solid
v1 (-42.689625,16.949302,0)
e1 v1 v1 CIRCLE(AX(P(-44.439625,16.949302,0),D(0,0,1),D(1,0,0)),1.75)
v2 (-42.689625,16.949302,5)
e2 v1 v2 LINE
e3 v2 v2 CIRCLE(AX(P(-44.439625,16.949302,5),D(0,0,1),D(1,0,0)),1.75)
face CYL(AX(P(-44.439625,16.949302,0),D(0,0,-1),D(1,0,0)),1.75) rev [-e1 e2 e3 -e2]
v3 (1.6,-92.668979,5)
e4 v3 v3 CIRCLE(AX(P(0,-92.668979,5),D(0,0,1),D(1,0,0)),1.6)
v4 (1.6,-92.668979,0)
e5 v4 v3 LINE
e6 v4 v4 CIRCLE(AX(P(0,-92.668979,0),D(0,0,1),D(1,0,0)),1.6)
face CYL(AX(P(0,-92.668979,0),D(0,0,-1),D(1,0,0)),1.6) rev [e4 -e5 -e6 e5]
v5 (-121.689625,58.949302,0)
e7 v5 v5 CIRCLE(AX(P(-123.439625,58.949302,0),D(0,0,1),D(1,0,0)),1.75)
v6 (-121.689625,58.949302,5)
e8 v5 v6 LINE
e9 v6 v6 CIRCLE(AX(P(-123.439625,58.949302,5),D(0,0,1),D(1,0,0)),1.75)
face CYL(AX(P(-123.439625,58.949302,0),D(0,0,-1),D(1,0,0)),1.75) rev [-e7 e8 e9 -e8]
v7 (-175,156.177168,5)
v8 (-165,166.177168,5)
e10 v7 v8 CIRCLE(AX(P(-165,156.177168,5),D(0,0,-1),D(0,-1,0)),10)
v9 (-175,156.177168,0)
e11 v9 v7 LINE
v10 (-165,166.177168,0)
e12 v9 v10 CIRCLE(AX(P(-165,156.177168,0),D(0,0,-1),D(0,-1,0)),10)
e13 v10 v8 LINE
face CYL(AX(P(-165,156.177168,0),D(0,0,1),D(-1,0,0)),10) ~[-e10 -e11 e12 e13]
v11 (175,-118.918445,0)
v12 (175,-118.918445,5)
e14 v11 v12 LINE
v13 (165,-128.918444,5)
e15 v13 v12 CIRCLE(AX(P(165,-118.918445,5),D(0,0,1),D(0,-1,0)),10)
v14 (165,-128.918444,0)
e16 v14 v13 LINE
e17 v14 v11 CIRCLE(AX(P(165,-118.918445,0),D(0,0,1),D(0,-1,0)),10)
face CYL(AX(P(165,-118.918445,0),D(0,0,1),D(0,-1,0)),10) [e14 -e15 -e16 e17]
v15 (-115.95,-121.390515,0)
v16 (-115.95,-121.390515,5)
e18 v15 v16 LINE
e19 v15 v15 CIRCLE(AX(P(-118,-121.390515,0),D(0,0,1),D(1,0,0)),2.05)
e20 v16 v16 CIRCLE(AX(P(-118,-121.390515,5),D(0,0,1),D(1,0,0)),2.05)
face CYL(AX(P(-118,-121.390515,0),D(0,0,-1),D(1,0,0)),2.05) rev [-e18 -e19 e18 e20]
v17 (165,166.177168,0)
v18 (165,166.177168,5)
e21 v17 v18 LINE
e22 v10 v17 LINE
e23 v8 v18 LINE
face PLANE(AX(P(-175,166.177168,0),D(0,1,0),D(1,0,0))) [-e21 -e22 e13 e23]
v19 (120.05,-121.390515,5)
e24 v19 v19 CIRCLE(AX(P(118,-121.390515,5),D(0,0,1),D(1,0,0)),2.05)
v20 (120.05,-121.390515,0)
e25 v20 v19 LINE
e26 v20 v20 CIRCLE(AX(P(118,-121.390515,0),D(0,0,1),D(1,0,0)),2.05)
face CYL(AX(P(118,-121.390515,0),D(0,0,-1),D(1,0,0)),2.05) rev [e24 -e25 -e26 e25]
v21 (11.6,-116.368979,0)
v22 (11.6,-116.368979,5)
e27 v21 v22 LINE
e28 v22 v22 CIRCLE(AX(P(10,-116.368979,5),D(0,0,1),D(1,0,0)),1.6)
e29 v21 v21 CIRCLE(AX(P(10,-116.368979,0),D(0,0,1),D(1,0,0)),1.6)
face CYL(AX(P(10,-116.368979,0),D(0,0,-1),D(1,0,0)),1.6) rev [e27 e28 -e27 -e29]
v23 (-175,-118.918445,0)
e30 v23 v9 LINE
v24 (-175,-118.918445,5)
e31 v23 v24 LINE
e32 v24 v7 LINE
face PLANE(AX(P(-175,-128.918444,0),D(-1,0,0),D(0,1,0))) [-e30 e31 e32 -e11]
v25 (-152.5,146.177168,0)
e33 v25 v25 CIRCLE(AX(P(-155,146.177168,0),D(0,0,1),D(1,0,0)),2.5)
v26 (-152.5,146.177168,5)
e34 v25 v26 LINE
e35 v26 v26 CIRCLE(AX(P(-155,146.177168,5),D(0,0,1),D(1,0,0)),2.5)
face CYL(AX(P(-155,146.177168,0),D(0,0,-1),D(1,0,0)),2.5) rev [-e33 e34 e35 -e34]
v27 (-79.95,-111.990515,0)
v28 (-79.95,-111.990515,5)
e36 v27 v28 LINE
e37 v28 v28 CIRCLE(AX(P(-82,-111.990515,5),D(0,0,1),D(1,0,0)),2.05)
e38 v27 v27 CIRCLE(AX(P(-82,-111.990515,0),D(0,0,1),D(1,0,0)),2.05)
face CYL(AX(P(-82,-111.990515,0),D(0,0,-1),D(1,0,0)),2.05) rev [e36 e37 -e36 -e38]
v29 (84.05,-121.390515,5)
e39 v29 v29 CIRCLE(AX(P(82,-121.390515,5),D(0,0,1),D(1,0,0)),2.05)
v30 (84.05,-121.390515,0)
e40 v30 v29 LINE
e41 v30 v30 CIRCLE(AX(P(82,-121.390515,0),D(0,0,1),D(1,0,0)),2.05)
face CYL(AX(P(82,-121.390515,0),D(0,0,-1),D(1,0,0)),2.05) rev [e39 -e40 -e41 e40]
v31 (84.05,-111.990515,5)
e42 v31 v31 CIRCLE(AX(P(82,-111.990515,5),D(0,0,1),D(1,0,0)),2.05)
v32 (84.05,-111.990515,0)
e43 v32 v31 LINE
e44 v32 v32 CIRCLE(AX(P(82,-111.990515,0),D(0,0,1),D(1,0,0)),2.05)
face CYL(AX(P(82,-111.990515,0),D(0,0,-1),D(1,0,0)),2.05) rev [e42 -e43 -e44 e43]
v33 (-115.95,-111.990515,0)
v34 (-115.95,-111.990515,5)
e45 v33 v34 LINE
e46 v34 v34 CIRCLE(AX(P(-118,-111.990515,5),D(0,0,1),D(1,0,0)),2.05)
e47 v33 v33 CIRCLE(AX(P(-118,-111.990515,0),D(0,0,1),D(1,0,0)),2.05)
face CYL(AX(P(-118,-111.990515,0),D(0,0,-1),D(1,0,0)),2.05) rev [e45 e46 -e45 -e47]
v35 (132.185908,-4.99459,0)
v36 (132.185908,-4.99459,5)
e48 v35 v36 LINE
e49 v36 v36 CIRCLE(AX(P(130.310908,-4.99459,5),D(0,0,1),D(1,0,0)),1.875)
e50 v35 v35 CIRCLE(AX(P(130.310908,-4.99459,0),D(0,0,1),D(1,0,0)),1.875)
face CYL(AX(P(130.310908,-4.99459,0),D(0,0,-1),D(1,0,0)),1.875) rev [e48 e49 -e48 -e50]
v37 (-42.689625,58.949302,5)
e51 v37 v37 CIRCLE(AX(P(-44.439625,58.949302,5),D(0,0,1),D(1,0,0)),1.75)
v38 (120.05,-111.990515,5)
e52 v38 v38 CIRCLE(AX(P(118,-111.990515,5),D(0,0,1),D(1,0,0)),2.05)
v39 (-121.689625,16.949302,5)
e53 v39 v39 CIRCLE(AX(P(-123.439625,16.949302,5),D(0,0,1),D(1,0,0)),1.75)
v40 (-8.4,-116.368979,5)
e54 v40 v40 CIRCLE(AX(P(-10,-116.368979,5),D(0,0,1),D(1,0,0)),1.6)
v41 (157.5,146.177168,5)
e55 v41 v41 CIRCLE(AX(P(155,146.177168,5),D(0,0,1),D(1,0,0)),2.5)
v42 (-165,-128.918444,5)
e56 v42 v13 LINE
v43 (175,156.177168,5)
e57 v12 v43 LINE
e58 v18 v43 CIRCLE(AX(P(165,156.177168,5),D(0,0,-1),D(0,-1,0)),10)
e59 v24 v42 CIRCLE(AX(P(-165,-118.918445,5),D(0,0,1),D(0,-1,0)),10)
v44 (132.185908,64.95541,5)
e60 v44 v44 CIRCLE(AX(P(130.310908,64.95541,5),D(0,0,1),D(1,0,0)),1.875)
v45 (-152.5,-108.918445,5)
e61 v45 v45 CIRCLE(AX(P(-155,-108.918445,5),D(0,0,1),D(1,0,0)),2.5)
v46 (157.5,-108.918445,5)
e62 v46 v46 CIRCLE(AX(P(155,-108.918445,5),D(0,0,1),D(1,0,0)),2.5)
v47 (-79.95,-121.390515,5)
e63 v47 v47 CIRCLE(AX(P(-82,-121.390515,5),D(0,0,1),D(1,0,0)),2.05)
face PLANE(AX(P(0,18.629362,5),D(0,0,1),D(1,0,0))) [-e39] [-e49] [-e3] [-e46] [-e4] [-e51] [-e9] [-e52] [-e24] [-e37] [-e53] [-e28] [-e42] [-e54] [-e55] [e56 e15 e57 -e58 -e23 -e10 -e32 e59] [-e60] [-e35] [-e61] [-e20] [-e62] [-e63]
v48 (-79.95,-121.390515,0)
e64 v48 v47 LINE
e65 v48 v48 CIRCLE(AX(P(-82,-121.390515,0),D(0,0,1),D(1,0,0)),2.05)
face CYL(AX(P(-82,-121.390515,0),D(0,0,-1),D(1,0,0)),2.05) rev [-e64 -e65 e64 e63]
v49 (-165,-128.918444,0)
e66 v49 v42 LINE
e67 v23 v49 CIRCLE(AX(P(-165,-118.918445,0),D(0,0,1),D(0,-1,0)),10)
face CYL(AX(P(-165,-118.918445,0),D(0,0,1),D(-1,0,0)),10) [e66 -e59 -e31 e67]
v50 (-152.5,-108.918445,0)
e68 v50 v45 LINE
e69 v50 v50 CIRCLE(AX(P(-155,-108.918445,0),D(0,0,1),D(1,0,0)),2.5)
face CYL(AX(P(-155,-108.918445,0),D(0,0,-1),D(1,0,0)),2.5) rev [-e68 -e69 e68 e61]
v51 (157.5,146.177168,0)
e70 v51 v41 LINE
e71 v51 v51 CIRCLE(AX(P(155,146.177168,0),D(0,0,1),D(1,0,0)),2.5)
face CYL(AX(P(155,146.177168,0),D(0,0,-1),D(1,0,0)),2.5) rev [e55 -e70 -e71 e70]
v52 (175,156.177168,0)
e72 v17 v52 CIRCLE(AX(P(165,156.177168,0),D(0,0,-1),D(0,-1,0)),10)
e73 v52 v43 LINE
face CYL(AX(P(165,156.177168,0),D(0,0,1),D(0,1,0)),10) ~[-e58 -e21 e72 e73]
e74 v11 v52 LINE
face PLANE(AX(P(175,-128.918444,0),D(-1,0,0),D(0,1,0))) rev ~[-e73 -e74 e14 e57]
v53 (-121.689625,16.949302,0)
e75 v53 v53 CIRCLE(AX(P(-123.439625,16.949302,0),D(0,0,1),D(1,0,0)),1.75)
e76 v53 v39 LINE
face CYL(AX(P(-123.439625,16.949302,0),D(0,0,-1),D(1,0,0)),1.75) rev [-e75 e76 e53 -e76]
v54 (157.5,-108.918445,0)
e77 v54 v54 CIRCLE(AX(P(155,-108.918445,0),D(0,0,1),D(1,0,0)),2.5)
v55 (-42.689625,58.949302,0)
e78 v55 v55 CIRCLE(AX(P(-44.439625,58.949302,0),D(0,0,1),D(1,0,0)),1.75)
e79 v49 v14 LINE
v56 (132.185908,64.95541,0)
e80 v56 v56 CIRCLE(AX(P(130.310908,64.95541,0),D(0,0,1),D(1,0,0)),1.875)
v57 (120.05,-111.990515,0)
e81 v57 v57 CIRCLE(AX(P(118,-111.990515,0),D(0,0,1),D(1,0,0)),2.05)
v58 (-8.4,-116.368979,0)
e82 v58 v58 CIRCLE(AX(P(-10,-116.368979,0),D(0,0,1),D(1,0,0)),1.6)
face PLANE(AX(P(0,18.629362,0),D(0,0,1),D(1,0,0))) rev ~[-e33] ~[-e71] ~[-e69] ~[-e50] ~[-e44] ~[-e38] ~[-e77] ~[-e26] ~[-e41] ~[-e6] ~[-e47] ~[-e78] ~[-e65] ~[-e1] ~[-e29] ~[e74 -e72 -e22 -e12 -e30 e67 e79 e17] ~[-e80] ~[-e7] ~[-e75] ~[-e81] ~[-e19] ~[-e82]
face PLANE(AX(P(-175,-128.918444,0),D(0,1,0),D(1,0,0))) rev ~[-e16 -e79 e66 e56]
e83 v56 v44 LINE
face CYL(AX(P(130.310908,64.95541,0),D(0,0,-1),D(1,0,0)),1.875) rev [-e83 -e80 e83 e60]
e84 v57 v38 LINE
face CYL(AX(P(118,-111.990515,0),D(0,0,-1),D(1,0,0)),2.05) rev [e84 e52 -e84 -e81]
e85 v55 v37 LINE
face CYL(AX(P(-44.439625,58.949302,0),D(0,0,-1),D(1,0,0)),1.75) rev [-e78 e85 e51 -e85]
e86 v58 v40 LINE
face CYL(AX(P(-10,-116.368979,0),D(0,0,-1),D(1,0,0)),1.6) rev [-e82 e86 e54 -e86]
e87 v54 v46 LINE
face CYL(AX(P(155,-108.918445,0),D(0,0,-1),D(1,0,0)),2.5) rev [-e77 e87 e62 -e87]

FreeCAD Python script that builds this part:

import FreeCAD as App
import Part
import Sketcher
from FreeCAD import Vector
Q = App.Units.Quantity


def edges_at(feature, points):
    """Names of the edges that pass closest to the given points."""
    edges = feature.Shape.Edges
    near = lambda p: min(range(len(edges)), key=lambda i: edges[i].distToShape(Part.Vertex(*p))[0])
    return sorted({f"Edge{near(p) + 1}" for p in points})


def add_polygon(sketch, points):
    """Adds a closed chain of lines whose ends are joined by coincident constraints."""
    first, n = sketch.GeometryCount, len(points)
    for a, b in zip(points, points[1:] + points[:1]):
        sketch.addGeometry(Part.LineSegment(App.Vector(*a, 0), App.Vector(*b, 0)), False)
    for i in range(n):
        sketch.addConstraint(Sketcher.Constraint("Coincident", first + i, 2, first + (i + 1) % n, 1))

doc = App.newDocument("Part")
body = doc.addObject("PartDesign::Body", "Body")

# Sketch on XY plane
sketch1 = doc.addObject("Sketcher::SketchObject", "Sketch")
body.addObject(sketch1)
sketch1.AttachmentSupport = (doc.XY_Plane, [""])
sketch1.MapMode = "FlatFace"
add_polygon(sketch1, [(-175, 166.2), (-175, -128.9), (175, -128.9), (175, 166.2)])  # lines 0-3
sketch1.addGeometry(Part.Circle(Vector(-155, -108.9, 0), Vector(0, 0, 1), 2.5), False)  # 4
sketch1.addGeometry(Part.Circle(Vector(-118, -121.4, 0), Vector(0, 0, 1), 2), False)  # 5
sketch1.addGeometry(Part.Circle(Vector(-118, -112, 0), Vector(0, 0, 1), 2), False)  # 6
sketch1.addGeometry(Part.Circle(Vector(-82, -121.4, 0), Vector(0, 0, 1), 2), False)  # 7
sketch1.addGeometry(Part.Circle(Vector(-82, -112, 0), Vector(0, 0, 1), 2), False)  # 8
sketch1.addGeometry(Part.Circle(Vector(-10, -116.4, 0), Vector(0, 0, 1), 1.6), False)  # 9
sketch1.addGeometry(Part.Circle(Vector(10, -116.4, 0), Vector(0, 0, 1), 1.6), False)  # 10
sketch1.addGeometry(Part.Circle(Vector(0, -92.7, 0), Vector(0, 0, 1), 1.6), False)  # 11
sketch1.addGeometry(Part.Circle(Vector(82, -121.4, 0), Vector(0, 0, 1), 2), False)  # 12
sketch1.addGeometry(Part.Circle(Vector(82, -112, 0), Vector(0, 0, 1), 2), False)  # 13
sketch1.addGeometry(Part.Circle(Vector(118, -121.4, 0), Vector(0, 0, 1), 2), False)  # 14
sketch1.addGeometry(Part.Circle(Vector(118, -112, 0), Vector(0, 0, 1), 2), False)  # 15
sketch1.addGeometry(Part.Circle(Vector(155, -108.9, 0), Vector(0, 0, 1), 2.5), False)  # 16
sketch1.addGeometry(Part.Circle(Vector(130.3, -5, 0), Vector(0, 0, 1), 1.9), False)  # 17
sketch1.addGeometry(Part.Circle(Vector(-123.4, 16.9, 0), Vector(0, 0, 1), 1.8), False)  # 18
sketch1.addGeometry(Part.Circle(Vector(-123.4, 58.9, 0), Vector(0, 0, 1), 1.8), False)  # 19
sketch1.addGeometry(Part.Circle(Vector(-44.4, 16.9, 0), Vector(0, 0, 1), 1.8), False)  # 20
sketch1.addGeometry(Part.Circle(Vector(-44.4, 58.9, 0), Vector(0, 0, 1), 1.8), False)  # 21
sketch1.addGeometry(Part.Circle(Vector(-155, 146.2, 0), Vector(0, 0, 1), 2.5), False)  # 22
sketch1.addGeometry(Part.Circle(Vector(130.3, 65, 0), Vector(0, 0, 1), 1.9), False)  # 23
sketch1.addGeometry(Part.Circle(Vector(155, 146.2, 0), Vector(0, 0, 1), 2.5), False)  # 24
sketch1.addConstraint([
    Sketcher.Constraint("Vertical", 0),
    Sketcher.Constraint("Horizontal", 1),
    Sketcher.Constraint("Vertical", 2),
    Sketcher.Constraint("Horizontal", 3),
    Sketcher.Constraint("Equal", 5, 6),
    Sketcher.Constraint("Equal", 6, 7),
    Sketcher.Constraint("Equal", 7, 8),
    Sketcher.Constraint("Equal", 9, 10),
    Sketcher.Constraint("Equal", 10, 11),
    Sketcher.Constraint("Equal", 8, 12),
    Sketcher.Constraint("Equal", 12, 13),
    Sketcher.Constraint("Equal", 13, 14),
    Sketcher.Constraint("Equal", 14, 15),
    Sketcher.Constraint("Equal", 4, 16),
    Sketcher.Constraint("Equal", 18, 19),
    Sketcher.Constraint("Equal", 19, 20),
    Sketcher.Constraint("Equal", 20, 21),
    Sketcher.Constraint("Equal", 16, 22),
    Sketcher.Constraint("Equal", 17, 23),
    Sketcher.Constraint("Equal", 22, 24),
    Sketcher.Constraint("Symmetric", 9, 3, 10, 3, -2),
    Sketcher.Constraint("Symmetric", 7, 3, 12, 3, -2),
    Sketcher.Constraint("Symmetric", 8, 3, 13, 3, -2),
    Sketcher.Constraint("Symmetric", 5, 3, 14, 3, -2),
    Sketcher.Constraint("Symmetric", 6, 3, 15, 3, -2),
    Sketcher.Constraint("Symmetric", 4, 3, 16, 3, -2),
    Sketcher.Constraint("Symmetric", 22, 3, 24, 3, -2),
    Sketcher.Constraint("PointOnObject", 11, 3, -2),
    Sketcher.Constraint("Horizontal", 5, 3, 7, 3),
    Sketcher.Constraint("Horizontal", 6, 3, 8, 3),
    Sketcher.Constraint("Horizontal", 18, 3, 20, 3),
    Sketcher.Constraint("Horizontal", 19, 3, 21, 3),
    Sketcher.Constraint("Vertical", 5, 3, 6, 3),
    Sketcher.Constraint("Vertical", 7, 3, 8, 3),
    Sketcher.Constraint("Vertical", 18, 3, 19, 3),
    Sketcher.Constraint("Vertical", 20, 3, 21, 3),
    Sketcher.Constraint("Vertical", 4, 3, 22, 3),
    Sketcher.Constraint("Vertical", 17, 3, 23, 3),
    Sketcher.Constraint("Diameter", 4, Q("5 mm")),
    Sketcher.Constraint("Diameter", 5, Q("4.1 mm")),
    Sketcher.Constraint("Diameter", 9, Q("3.2 mm")),
    Sketcher.Constraint("Diameter", 18, Q("3.5 mm")),
    Sketcher.Constraint("Diameter", 17, Q("3.75 mm")),
    Sketcher.Constraint("DistanceX", 1, 1, 1, 2, Q("350 mm")),
    Sketcher.Constraint("DistanceX", 4, 3, -1, 1, Q("155 mm")),
    Sketcher.Constraint("DistanceX", 5, 3, -1, 1, Q("118 mm")),
    Sketcher.Constraint("DistanceX", 7, 3, -1, 1, Q("82 mm")),
    Sketcher.Constraint("DistanceX", 9, 3, -1, 1, Q("10 mm")),
    Sketcher.Constraint("DistanceX", 0, 2, -1, 1, Q("175 mm")),
    Sketcher.Constraint("DistanceY", 18, 3, 19, 3, Q("42 mm")),
    Sketcher.Constraint("DistanceX", 18, 3, 20, 3, Q("79 mm")),
    Sketcher.Constraint("DistanceY", 0, 2, 4, 3, Q("19.999999 mm")),
    Sketcher.Constraint("DistanceY", 24, 3, 2, 2, Q("20 mm")),
    Sketcher.Constraint("DistanceY", 5, 3, 6, 3, Q("9.4 mm")),
    Sketcher.Constraint("DistanceY", 9, 3, 11, 3, Q("23.7 mm")),
    Sketcher.Constraint("DistanceY", 17, 3, 23, 3, Q("69.95 mm")),
    Sketcher.Constraint("DistanceY", -1, 1, 18, 3, Q("16.949302 mm")),
    Sketcher.Constraint("DistanceY", 0, 2, 0, 1, Q("295.095613 mm")),
    Sketcher.Constraint("DistanceY", 9, 3, -1, 1, Q("116.368979 mm")),
    Sketcher.Constraint("DistanceX", -1, 1, 17, 3, Q("130.310908 mm")),
    Sketcher.Constraint("DistanceY", 17, 3, -1, 1, Q("4.99459 mm")),
    Sketcher.Constraint("DistanceY", -1, 1, 22, 3, Q("146.177168 mm")),
    Sketcher.Constraint("DistanceY", 5, 3, 4, 3, Q("12.47207 mm")),
    Sketcher.Constraint("DistanceX", 18, 3, -1, 1, Q("123.439625 mm")),
])
pad1 = doc.addObject("PartDesign::Pad", "Pad")
body.addObject(pad1)
pad1.Profile = sketch1
pad1.Length = 5
doc.recompute()

fillet = doc.addObject("PartDesign::Fillet", "Fillet")
body.addObject(fillet)
fillet.Base = (pad1, edges_at(pad1, [
    (-175, 166.177, 2.5),
    (-175, -128.918, 2.5),
    (175, 166.177, 2.5),
    (175, -128.918, 2.5),
]))
fillet.Radius = 10

doc.recompute()
